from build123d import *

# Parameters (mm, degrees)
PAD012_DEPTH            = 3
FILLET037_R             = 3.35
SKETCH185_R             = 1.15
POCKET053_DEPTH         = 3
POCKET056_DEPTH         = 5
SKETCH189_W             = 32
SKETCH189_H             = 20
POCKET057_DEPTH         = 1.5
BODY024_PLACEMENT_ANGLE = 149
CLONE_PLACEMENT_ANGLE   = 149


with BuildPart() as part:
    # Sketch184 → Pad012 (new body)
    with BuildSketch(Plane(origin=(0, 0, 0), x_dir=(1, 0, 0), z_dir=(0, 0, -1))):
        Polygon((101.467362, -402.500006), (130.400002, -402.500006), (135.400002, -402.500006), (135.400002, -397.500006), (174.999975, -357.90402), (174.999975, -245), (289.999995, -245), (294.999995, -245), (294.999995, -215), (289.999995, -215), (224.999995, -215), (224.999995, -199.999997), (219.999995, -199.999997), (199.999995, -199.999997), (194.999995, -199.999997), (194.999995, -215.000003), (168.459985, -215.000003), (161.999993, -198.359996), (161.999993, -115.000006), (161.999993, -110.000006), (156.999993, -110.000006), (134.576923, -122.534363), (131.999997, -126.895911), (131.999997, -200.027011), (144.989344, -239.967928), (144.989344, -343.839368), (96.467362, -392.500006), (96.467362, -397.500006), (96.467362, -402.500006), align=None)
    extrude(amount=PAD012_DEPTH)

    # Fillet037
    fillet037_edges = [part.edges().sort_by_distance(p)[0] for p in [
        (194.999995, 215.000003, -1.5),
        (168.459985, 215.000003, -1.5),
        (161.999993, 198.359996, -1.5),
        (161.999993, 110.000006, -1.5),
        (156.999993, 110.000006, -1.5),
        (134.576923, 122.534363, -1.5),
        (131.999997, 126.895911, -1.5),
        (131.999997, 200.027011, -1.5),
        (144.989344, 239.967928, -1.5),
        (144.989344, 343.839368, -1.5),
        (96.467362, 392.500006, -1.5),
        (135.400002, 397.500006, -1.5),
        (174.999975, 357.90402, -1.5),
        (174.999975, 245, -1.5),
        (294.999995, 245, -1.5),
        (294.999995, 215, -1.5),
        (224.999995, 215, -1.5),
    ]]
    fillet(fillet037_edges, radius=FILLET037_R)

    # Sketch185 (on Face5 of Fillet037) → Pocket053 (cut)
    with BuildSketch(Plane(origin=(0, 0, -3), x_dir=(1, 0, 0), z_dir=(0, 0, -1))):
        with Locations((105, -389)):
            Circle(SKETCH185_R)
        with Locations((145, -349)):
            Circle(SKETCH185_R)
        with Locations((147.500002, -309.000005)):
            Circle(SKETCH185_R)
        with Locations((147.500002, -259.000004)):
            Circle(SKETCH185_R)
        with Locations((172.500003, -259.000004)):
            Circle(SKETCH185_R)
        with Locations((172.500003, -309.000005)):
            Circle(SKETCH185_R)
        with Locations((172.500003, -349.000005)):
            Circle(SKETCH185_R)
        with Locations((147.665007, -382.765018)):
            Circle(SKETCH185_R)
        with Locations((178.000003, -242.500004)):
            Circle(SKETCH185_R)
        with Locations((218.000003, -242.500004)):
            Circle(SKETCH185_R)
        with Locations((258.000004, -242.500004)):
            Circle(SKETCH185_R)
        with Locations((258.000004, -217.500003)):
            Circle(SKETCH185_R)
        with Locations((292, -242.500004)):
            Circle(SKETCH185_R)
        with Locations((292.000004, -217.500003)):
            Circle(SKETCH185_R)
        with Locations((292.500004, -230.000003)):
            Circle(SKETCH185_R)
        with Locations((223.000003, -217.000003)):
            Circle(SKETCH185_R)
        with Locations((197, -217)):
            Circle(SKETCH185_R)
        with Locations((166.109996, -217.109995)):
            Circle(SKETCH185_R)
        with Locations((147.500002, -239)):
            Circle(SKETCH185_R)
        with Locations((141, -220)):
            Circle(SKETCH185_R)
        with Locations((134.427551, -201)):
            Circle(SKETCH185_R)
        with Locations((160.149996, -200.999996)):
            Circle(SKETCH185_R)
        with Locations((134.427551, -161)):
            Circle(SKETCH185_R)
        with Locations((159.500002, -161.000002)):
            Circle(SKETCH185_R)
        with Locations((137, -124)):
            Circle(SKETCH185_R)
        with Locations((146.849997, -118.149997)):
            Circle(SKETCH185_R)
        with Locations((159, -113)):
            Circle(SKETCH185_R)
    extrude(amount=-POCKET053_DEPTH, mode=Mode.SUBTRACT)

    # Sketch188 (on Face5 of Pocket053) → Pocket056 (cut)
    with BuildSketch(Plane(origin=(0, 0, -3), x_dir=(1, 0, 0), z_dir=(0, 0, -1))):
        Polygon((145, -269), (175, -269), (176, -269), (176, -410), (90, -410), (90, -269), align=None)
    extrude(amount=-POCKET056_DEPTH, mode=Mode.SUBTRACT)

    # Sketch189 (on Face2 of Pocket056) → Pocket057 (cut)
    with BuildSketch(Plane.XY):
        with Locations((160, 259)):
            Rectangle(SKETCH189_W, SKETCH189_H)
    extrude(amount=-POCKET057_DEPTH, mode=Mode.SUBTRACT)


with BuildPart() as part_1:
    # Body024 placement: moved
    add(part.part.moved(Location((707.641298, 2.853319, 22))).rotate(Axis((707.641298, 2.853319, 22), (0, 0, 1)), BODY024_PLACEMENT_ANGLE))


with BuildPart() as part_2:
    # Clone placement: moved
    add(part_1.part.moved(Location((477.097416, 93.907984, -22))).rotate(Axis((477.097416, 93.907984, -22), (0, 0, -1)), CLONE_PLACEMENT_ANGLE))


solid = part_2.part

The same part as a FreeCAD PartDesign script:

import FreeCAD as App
import Part
import Sketcher


def edges_at(feature, points):
    """Names of the edges that pass closest to the given points."""
    edges = feature.Shape.Edges
    near = lambda p: min(range(len(edges)), key=lambda i: edges[i].distToShape(Part.Vertex(*p))[0])
    return sorted({f"Edge{near(p) + 1}" for p in points})

doc = App.newDocument("Part")
body = doc.addObject("PartDesign::Body", "Body")

# Sketch on XY plane
sketch1 = body.newObject("Sketcher::SketchObject", "Sketch")
sketch1.AttachmentSupport = (doc.getObject("XY_Plane"), [""])
sketch1.MapMode = "FlatFace"
sketch1.addGeometry([
    Part.LineSegment(App.Vector(135.400002, 402.500006, 0), App.Vector(135.400002, 397.500006, 0)),  # 0
    Part.LineSegment(App.Vector(135.400002, 397.500006, 0), App.Vector(174.999975, 357.90402, 0)),  # 1
    Part.LineSegment(App.Vector(174.999975, 357.90402, 0), App.Vector(174.999975, 245, 0)),  # 2
    Part.LineSegment(App.Vector(174.999975, 245, 0), App.Vector(294.999995, 245, 0)),  # 3
    Part.LineSegment(App.Vector(294.999995, 245, 0), App.Vector(294.999995, 215, 0)),  # 4
    Part.LineSegment(App.Vector(294.999995, 215, 0), App.Vector(224.999995, 215, 0)),  # 5
    Part.LineSegment(App.Vector(224.999995, 215, 0), App.Vector(224.999995, 199.999997, 0)),  # 6
    Part.LineSegment(App.Vector(224.999995, 199.999997, 0), App.Vector(194.999995, 199.999997, 0)),  # 7
    Part.LineSegment(App.Vector(194.999995, 199.999997, 0), App.Vector(194.999995, 215.000003, 0)),  # 8
    Part.LineSegment(App.Vector(194.999995, 215.000003, 0), App.Vector(168.459985, 215.000003, 0)),  # 9
    Part.LineSegment(App.Vector(168.459985, 215.000003, 0), App.Vector(161.999993, 198.359996, 0)),  # 10
    Part.LineSegment(App.Vector(161.999993, 198.359996, 0), App.Vector(161.999993, 110.000006, 0)),  # 11
    Part.LineSegment(App.Vector(161.999993, 110.000006, 0), App.Vector(156.999993, 110.000006, 0)),  # 12
    Part.LineSegment(App.Vector(156.999993, 110.000006, 0), App.Vector(134.576923, 122.534363, 0)),  # 13
    Part.LineSegment(App.Vector(134.576923, 122.534363, 0), App.Vector(131.999997, 126.895911, 0)),  # 14
    Part.LineSegment(App.Vector(131.999997, 126.895911, 0), App.Vector(131.999997, 200.027011, 0)),  # 15
    Part.LineSegment(App.Vector(131.999997, 200.027011, 0), App.Vector(144.989344, 239.967928, 0)),  # 16
    Part.LineSegment(App.Vector(144.989344, 239.967928, 0), App.Vector(144.989344, 343.839368, 0)),  # 17
    Part.LineSegment(App.Vector(144.989344, 343.839368, 0), App.Vector(96.467362, 392.500006, 0)),  # 18
    Part.LineSegment(App.Vector(96.467362, 392.500006, 0), App.Vector(96.467362, 402.500006, 0)),  # 19
    Part.LineSegment(App.Vector(96.467362, 402.500006, 0), App.Vector(135.400002, 402.500006, 0)),  # 20
], False)
sketch1.addConstraint([
    Sketcher.Constraint("Coincident", 0, 2, 1, 1),
    Sketcher.Constraint("Coincident", 1, 2, 2, 1),
    Sketcher.Constraint("Coincident", 2, 2, 3, 1),
    Sketcher.Constraint("Coincident", 3, 2, 4, 1),
    Sketcher.Constraint("Coincident", 4, 2, 5, 1),
    Sketcher.Constraint("Coincident", 5, 2, 6, 1),
    Sketcher.Constraint("Coincident", 6, 2, 7, 1),
    Sketcher.Constraint("Coincident", 7, 2, 8, 1),
    Sketcher.Constraint("Coincident", 8, 2, 9, 1),
    Sketcher.Constraint("Coincident", 9, 2, 10, 1),
    Sketcher.Constraint("Coincident", 10, 2, 11, 1),
    Sketcher.Constraint("Coincident", 11, 2, 12, 1),
    Sketcher.Constraint("Coincident", 12, 2, 13, 1),
    Sketcher.Constraint("Coincident", 13, 2, 14, 1),
    Sketcher.Constraint("Coincident", 14, 2, 15, 1),
    Sketcher.Constraint("Coincident", 15, 2, 16, 1),
    Sketcher.Constraint("Coincident", 16, 2, 17, 1),
    Sketcher.Constraint("Coincident", 17, 2, 18, 1),
    Sketcher.Constraint("Coincident", 18, 2, 19, 1),
    Sketcher.Constraint("Coincident", 19, 2, 20, 1),
    Sketcher.Constraint("Coincident", 20, 2, 0, 1),
    Sketcher.Constraint("Vertical", 0),
    Sketcher.Constraint("Vertical", 2),
    Sketcher.Constraint("Horizontal", 3),
    Sketcher.Constraint("Vertical", 4),
    Sketcher.Constraint("Horizontal", 5),
    Sketcher.Constraint("Vertical", 6),
    Sketcher.Constraint("Horizontal", 7),
    Sketcher.Constraint("Vertical", 8),
    Sketcher.Constraint("Horizontal", 9),
    Sketcher.Constraint("Vertical", 11),
    Sketcher.Constraint("Horizontal", 12),
    Sketcher.Constraint("Vertical", 15),
    Sketcher.Constraint("Vertical", 17),
    Sketcher.Constraint("Vertical", 19),
    Sketcher.Constraint("Horizontal", 20),
    Sketcher.Constraint("Equal", 12, 0),
    Sketcher.Constraint("Equal", 7, 4),
    Sketcher.Constraint("DistanceX", 5, 2, 5, 1, 70.0),
    Sketcher.Constraint("DistanceX", 7, 2, 7, 1, 30.0),
    Sketcher.Constraint("DistanceX", 12, 2, 12, 1, 5.0),
    Sketcher.Constraint("DistanceY", 19, 1, 19, 2, 10.0),
    Sketcher.Constraint("Distance", 1, 56.0),
    Sketcher.Constraint("Distance", 16, 42.0),
    Sketcher.Constraint("DistanceY", -1, 1, 2, 2, 245.0),
    Sketcher.Constraint("DistanceX", 15, 2, 7, 2, 62.999998),
    Sketcher.Constraint("DistanceX", -1, 1, 0, 2, 135.400002),
    Sketcher.Constraint("DistanceY", 10, 2, 7, 2, 1.640001),
    Sketcher.Constraint("DistanceY", 15, 1, 15, 2, 73.1311),
    Sketcher.Constraint("Distance", 13, 25.6886),
    Sketcher.Constraint("DistanceX", 3, 1, 3, 2, 120.00002),
    Sketcher.Constraint("DistanceX", 9, 2, 9, 1, 26.54001),
    Sketcher.Constraint("DistanceX", 20, 1, 20, 2, 38.93264),
    Sketcher.Constraint("DistanceY", 2, 2, 2, 1, 112.90402),
    Sketcher.Constraint("DistanceY", 11, 2, 11, 1, 88.35999),
    Sketcher.Constraint("DistanceY", 17, 1, 17, 2, 103.87144),
    Sketcher.Constraint("Distance", 14, 5.06593),
    Sketcher.Constraint("Distance", 18, 68.71856),
    Sketcher.Constraint("DistanceY", 6, 2, 6, 1, 15.000003),
    Sketcher.Constraint("DistanceY", 8, 1, 8, 2, 15.000006),
    Sketcher.Constraint("DistanceY", -1, 1, 14, 2, 126.895911),
    Sketcher.Constraint("DistanceX", 10, 2, 9, 2, 6.459992),
    Sketcher.Constraint("DistanceX", 0, 2, 17, 2, 9.589342),
])
pad1 = body.newObject("PartDesign::Pad", "Pad")
pad1.Profile = sketch1
pad1.Length = 3
pad1.Reversed = True
doc.recompute()

fillet = body.newObject("PartDesign::Fillet", "Fillet")
fillet.Base = (pad1, edges_at(pad1, [
    (195, 215, -1.5),
    (168.46, 215, -1.5),
    (162, 198.36, -1.5),
    (162, 110, -1.5),
    (157, 110, -1.5),
    (134.577, 122.534, -1.5),
    (132, 126.896, -1.5),
    (132, 200.027, -1.5),
    (144.989, 239.968, -1.5),
    (144.989, 343.839, -1.5),
    (96.467, 392.5, -1.5),
    (135.4, 397.5, -1.5),
    (175, 357.904, -1.5),
    (175, 245, -1.5),
    (295, 245, -1.5),
    (295, 215, -1.5),
    (225, 215, -1.5),
]))
fillet.Radius = 3.35

# Sketch on XY plane
sketch2 = body.newObject("Sketcher::SketchObject", "Sketch001")
sketch2.AttachmentSupport = (doc.getObject("XY_Plane"), [""])
sketch2.MapMode = "FlatFace"
sketch2.AttachmentOffset = App.Placement(App.Vector(0, 0, -3), App.Rotation())
sketch2.addGeometry([
    Part.Circle(App.Vector(105, 389, 0), App.Vector(0, 0, 1), 1.15),  # 0
    Part.Circle(App.Vector(145, 349, 0), App.Vector(0, 0, 1), 1.15),  # 1
    Part.Circle(App.Vector(147.500002, 309.000005, 0), App.Vector(0, 0, 1), 1.15),  # 2
    Part.Circle(App.Vector(147.500002, 259.000004, 0), App.Vector(0, 0, 1), 1.15),  # 3
    Part.Circle(App.Vector(172.500003, 259.000004, 0), App.Vector(0, 0, 1), 1.15),  # 4
    Part.Circle(App.Vector(172.500003, 309.000005, 0), App.Vector(0, 0, 1), 1.15),  # 5
    Part.Circle(App.Vector(172.500003, 349.000005, 0), App.Vector(0, 0, 1), 1.15),  # 6
    Part.Circle(App.Vector(147.665007, 382.765018, 0), App.Vector(0, 0, 1), 1.15),  # 7
    Part.Circle(App.Vector(178.000003, 242.500004, 0), App.Vector(0, 0, 1), 1.15),  # 8
    Part.Circle(App.Vector(218.000003, 242.500004, 0), App.Vector(0, 0, 1), 1.15),  # 9
    Part.Circle(App.Vector(258.000004, 242.500004, 0), App.Vector(0, 0, 1), 1.15),  # 10
    Part.Circle(App.Vector(258.000004, 217.500003, 0), App.Vector(0, 0, 1), 1.15),  # 11
    Part.Circle(App.Vector(292, 242.500004, 0), App.Vector(0, 0, 1), 1.15),  # 12
    Part.Circle(App.Vector(292.000004, 217.500003, 0), App.Vector(0, 0, 1), 1.15),  # 13
    Part.Circle(App.Vector(292.500004, 230.000003, 0), App.Vector(0, 0, 1), 1.15),  # 14
    Part.Circle(App.Vector(223.000003, 217.000003, 0), App.Vector(0, 0, 1), 1.15),  # 15
    Part.Circle(App.Vector(197, 217, 0), App.Vector(0, 0, 1), 1.15),  # 16
    Part.Circle(App.Vector(166.109996, 217.109995, 0), App.Vector(0, 0, 1), 1.15),  # 17
    Part.Circle(App.Vector(147.500002, 239, 0), App.Vector(0, 0, 1), 1.15),  # 18
    Part.Circle(App.Vector(141, 220, 0), App.Vector(0, 0, 1), 1.15),  # 19
    Part.Circle(App.Vector(134.427551, 201, 0), App.Vector(0, 0, 1), 1.15),  # 20
    Part.Circle(App.Vector(160.149996, 200.999996, 0), App.Vector(0, 0, 1), 1.15),  # 21
    Part.Circle(App.Vector(134.427551, 161, 0), App.Vector(0, 0, 1), 1.15),  # 22
    Part.Circle(App.Vector(159.500002, 161.000002, 0), App.Vector(0, 0, 1), 1.15),  # 23
    Part.Circle(App.Vector(137, 124, 0), App.Vector(0, 0, 1), 1.15),  # 24
    Part.Circle(App.Vector(146.849997, 118.149997, 0), App.Vector(0, 0, 1), 1.15),  # 25
    Part.Circle(App.Vector(159, 113, 0), App.Vector(0, 0, 1), 1.15),  # 26
], False)
sketch2.addConstraint([
    Sketcher.Constraint("Equal", 0, 1),
    Sketcher.Constraint("Equal", 1, 2),
    Sketcher.Constraint("Equal", 2, 3),
    Sketcher.Constraint("Equal", 3, 4),
    Sketcher.Constraint("Equal", 4, 5),
    Sketcher.Constraint("Equal", 5, 6),
    Sketcher.Constraint("Equal", 6, 7),
    Sketcher.Constraint("Equal", 7, 8),
    Sketcher.Constraint("Equal", 8, 9),
    Sketcher.Constraint("Equal", 9, 10),
    Sketcher.Constraint("Equal", 10, 11),
    Sketcher.Constraint("Equal", 11, 12),
    Sketcher.Constraint("Equal", 12, 13),
    Sketcher.Constraint("Equal", 13, 14),
    Sketcher.Constraint("Equal", 14, 15),
    Sketcher.Constraint("Equal", 15, 16),
    Sketcher.Constraint("Equal", 16, 17),
    Sketcher.Constraint("Equal", 17, 18),
    Sketcher.Constraint("Equal", 18, 19),
    Sketcher.Constraint("Equal", 19, 20),
    Sketcher.Constraint("Equal", 20, 21),
    Sketcher.Constraint("Equal", 21, 22),
    Sketcher.Constraint("Equal", 22, 23),
    Sketcher.Constraint("Equal", 23, 24),
    Sketcher.Constraint("Equal", 24, 25),
    Sketcher.Constraint("Equal", 25, 26),
    Sketcher.Constraint("Horizontal", 3, 3, 4, 3),
    Sketcher.Constraint("Horizontal", 2, 3, 5, 3),
    Sketcher.Constraint("Horizontal", 8, 3, 9, 3),
    Sketcher.Constraint("Horizontal", 9, 3, 10, 3),
    Sketcher.Constraint("Horizontal", 10, 3, 12, 3),
    Sketcher.Constraint("Horizontal", 11, 3, 13, 3),
    Sketcher.Constraint("Horizontal", 22, 3, 23, 3),
    Sketcher.Constraint("Vertical", 2, 3, 3, 3),
    Sketcher.Constraint("Vertical", 4, 3, 5, 3),
    Sketcher.Constraint("Vertical", 5, 3, 6, 3),
    Sketcher.Constraint("Vertical", 10, 3, 11, 3),
    Sketcher.Constraint("Vertical", 3, 3, 18, 3),
    Sketcher.Constraint("Vertical", 20, 3, 22, 3),
    Sketcher.Constraint("Diameter", 0, 2.3),
    Sketcher.Constraint("DistanceX", -1, 1, 0, 3, 105.0),
    Sketcher.Constraint("DistanceY", -1, 1, 0, 3, 389.0),
    Sketcher.Constraint("DistanceX", -1, 1, 1, 3, 145.0),
    Sketcher.Constraint("DistanceY", -1, 1, 1, 3, 349.0),
    Sketcher.Constraint("DistanceX", -1, 1, 12, 3, 292.0),
    Sketcher.Constraint("DistanceX", -1, 1, 16, 3, 197.0),
    Sketcher.Constraint("DistanceY", -1, 1, 16, 3, 217.0),
    Sketcher.Constraint("DistanceY", -1, 1, 18, 3, 239.0),
    Sketcher.Constraint("DistanceX", -1, 1, 19, 3, 141.0),
    Sketcher.Constraint("DistanceY", -1, 1, 19, 3, 220.0),
    Sketcher.Constraint("DistanceY", -1, 1, 20, 3, 201.0),
    Sketcher.Constraint("DistanceY", -1, 1, 22, 3, 161.0),
    Sketcher.Constraint("DistanceX", -1, 1, 24, 3, 137.0),
    Sketcher.Constraint("DistanceY", -1, 1, 24, 3, 124.0),
    Sketcher.Constraint("DistanceX", -1, 1, 26, 3, 159.0),
    Sketcher.Constraint("DistanceY", -1, 1, 26, 3, 113.0),
    Sketcher.Constraint("DistanceY", 3, 3, 2, 3, 50.000001),
    Sketcher.Constraint("DistanceX", 3, 3, 4, 3, 25.000001),
    Sketcher.Constraint("DistanceY", 5, 3, 6, 3, 40.0),
    Sketcher.Constraint("DistanceX", 8, 3, 9, 3, 40.0),
    Sketcher.Constraint("DistanceX", 9, 3, 10, 3, 40.000001),
    Sketcher.Constraint("DistanceY", 11, 3, 10, 3, 25.000001),
    Sketcher.Constraint("DistanceX", 11, 3, 13, 3, 34.0),
    Sketcher.Constraint("DistanceX", 9, 3, 15, 3, 5.0),
    Sketcher.Constraint("DistanceY", 15, 3, 4, 3, 42.000001),
    Sketcher.Constraint("DistanceX", -1, 1, 2, 3, 147.500002),
    Sketcher.Constraint("DistanceX", -1, 1, 23, 3, 159.500002),
    Sketcher.Constraint("DistanceX", 4, 3, 8, 3, 5.5),
    Sketcher.Constraint("DistanceY", 8, 3, 4, 3, 16.5),
    Sketcher.Constraint("DistanceX", 13, 3, 14, 3, 0.5),
    Sketcher.Constraint("DistanceY", 13, 3, 14, 3, 12.5),
    Sketcher.Constraint("DistanceX", 25, 3, 21, 3, 13.299999),
    Sketcher.Constraint("DistanceX", 21, 3, 17, 3, 5.96),
    Sketcher.Constraint("DistanceY", 21, 3, 17, 3, 16.109999),
    Sketcher.Constraint("DistanceY", 25, 3, 21, 3, 82.849999),
    Sketcher.Constraint("DistanceY", -1, 1, 7, 3, 382.765018),
    Sketcher.Constraint("DistanceX", -1, 1, 20, 3, 134.427551),
    Sketcher.Constraint("DistanceY", 17, 3, 8, 3, 25.390009),
    Sketcher.Constraint("DistanceY", -1, 1, 2, 3, 309.000005),
    Sketcher.Constraint("DistanceX", -1, 1, 7, 3, 147.665007),
    Sketcher.Constraint("DistanceX", -1, 1, 17, 3, 166.109996),
])
pocket1 = body.newObject("PartDesign::Pocket", "Pocket")
pocket1.Profile = sketch2
pocket1.Length = 3
pocket1.Reversed = True

# Sketch on XY plane
sketch3 = body.newObject("Sketcher::SketchObject", "Sketch002")
sketch3.AttachmentSupport = (doc.getObject("XY_Plane"), [""])
sketch3.MapMode = "FlatFace"
sketch3.AttachmentOffset = App.Placement(App.Vector(0, 0, -3), App.Rotation())
sketch3.addGeometry([
    Part.LineSegment(App.Vector(176, 269, 0), App.Vector(90, 269, 0)),
    Part.LineSegment(App.Vector(90, 269, 0), App.Vector(90, 410, 0)),
    Part.LineSegment(App.Vector(90, 410, 0), App.Vector(176, 410, 0)),
    Part.LineSegment(App.Vector(176, 410, 0), App.Vector(176, 269, 0)),
], False)
sketch3.addConstraint([
    Sketcher.Constraint("Coincident", 0, 2, 1, 1),
    Sketcher.Constraint("Coincident", 1, 2, 2, 1),
    Sketcher.Constraint("Coincident", 2, 2, 3, 1),
    Sketcher.Constraint("Coincident", 3, 2, 0, 1),
    Sketcher.Constraint("Horizontal", 0),
    Sketcher.Constraint("Vertical", 1),
    Sketcher.Constraint("Horizontal", 2),
    Sketcher.Constraint("Vertical", 3),
    Sketcher.Constraint("DistanceX", 0, 2, 0, 1, 86.0),
    Sketcher.Constraint("DistanceY", 1, 1, 1, 2, 141.0),
    Sketcher.Constraint("DistanceX", -1, 1, 0, 2, 90.0),
    Sketcher.Constraint("DistanceY", -1, 1, 0, 2, 269.0),
])
pocket2 = body.newObject("PartDesign::Pocket", "Pocket001")
pocket2.Profile = sketch3
pocket2.Length = 5
pocket2.Reversed = True

# Sketch on XY plane
sketch4 = body.newObject("Sketcher::SketchObject", "Sketch003")
sketch4.AttachmentSupport = (doc.getObject("XY_Plane"), [""])
sketch4.MapMode = "FlatFace"
sketch4.addGeometry([
    Part.LineSegment(App.Vector(144, 269, 0), App.Vector(144, 249, 0)),
    Part.LineSegment(App.Vector(144, 249, 0), App.Vector(176, 249, 0)),
    Part.LineSegment(App.Vector(176, 249, 0), App.Vector(176, 269, 0)),
    Part.LineSegment(App.Vector(176, 269, 0), App.Vector(144, 269, 0)),
], False)
sketch4.addConstraint([
    Sketcher.Constraint("Coincident", 0, 2, 1, 1),
    Sketcher.Constraint("Coincident", 1, 2, 2, 1),
    Sketcher.Constraint("Coincident", 2, 2, 3, 1),
    Sketcher.Constraint("Coincident", 3, 2, 0, 1),
    Sketcher.Constraint("Vertical", 0),
    Sketcher.Constraint("Horizontal", 1),
    Sketcher.Constraint("Vertical", 2),
    Sketcher.Constraint("Horizontal", 3),
    Sketcher.Constraint("DistanceX", 1, 1, 1, 2, 32.0),
    Sketcher.Constraint("DistanceY", 0, 2, 0, 1, 20.0),
    Sketcher.Constraint("DistanceX", -1, 1, 0, 2, 144.0),
    Sketcher.Constraint("DistanceY", -1, 1, 0, 2, 249.0),
])
pocket3 = body.newObject("PartDesign::Pocket", "Pocket002")
pocket3.Profile = sketch4
pocket3.Length = 1.5
body2 = doc.addObject("PartDesign::Body", "Body001")
doc.recompute()

body.Placement = App.Placement(App.Vector(707.641298, 2.853319, 22), App.Rotation(App.Vector(0, 0, 1), 149))
boolean = body2.newObject("PartDesign::Boolean", "Boolean")
boolean.Type = "Fuse"
boolean.addObjects([body])
body3 = doc.addObject("PartDesign::Body", "Body002")
doc.recompute()

body2.Placement = App.Placement(App.Vector(477.097416, 93.907984, -22), App.Rotation(App.Vector(0, 0, -1), 149))
boolean2 = body3.newObject("PartDesign::Boolean", "Boolean001")
boolean2.Type = "Fuse"
boolean2.addObjects([body2])

doc.recompute()
